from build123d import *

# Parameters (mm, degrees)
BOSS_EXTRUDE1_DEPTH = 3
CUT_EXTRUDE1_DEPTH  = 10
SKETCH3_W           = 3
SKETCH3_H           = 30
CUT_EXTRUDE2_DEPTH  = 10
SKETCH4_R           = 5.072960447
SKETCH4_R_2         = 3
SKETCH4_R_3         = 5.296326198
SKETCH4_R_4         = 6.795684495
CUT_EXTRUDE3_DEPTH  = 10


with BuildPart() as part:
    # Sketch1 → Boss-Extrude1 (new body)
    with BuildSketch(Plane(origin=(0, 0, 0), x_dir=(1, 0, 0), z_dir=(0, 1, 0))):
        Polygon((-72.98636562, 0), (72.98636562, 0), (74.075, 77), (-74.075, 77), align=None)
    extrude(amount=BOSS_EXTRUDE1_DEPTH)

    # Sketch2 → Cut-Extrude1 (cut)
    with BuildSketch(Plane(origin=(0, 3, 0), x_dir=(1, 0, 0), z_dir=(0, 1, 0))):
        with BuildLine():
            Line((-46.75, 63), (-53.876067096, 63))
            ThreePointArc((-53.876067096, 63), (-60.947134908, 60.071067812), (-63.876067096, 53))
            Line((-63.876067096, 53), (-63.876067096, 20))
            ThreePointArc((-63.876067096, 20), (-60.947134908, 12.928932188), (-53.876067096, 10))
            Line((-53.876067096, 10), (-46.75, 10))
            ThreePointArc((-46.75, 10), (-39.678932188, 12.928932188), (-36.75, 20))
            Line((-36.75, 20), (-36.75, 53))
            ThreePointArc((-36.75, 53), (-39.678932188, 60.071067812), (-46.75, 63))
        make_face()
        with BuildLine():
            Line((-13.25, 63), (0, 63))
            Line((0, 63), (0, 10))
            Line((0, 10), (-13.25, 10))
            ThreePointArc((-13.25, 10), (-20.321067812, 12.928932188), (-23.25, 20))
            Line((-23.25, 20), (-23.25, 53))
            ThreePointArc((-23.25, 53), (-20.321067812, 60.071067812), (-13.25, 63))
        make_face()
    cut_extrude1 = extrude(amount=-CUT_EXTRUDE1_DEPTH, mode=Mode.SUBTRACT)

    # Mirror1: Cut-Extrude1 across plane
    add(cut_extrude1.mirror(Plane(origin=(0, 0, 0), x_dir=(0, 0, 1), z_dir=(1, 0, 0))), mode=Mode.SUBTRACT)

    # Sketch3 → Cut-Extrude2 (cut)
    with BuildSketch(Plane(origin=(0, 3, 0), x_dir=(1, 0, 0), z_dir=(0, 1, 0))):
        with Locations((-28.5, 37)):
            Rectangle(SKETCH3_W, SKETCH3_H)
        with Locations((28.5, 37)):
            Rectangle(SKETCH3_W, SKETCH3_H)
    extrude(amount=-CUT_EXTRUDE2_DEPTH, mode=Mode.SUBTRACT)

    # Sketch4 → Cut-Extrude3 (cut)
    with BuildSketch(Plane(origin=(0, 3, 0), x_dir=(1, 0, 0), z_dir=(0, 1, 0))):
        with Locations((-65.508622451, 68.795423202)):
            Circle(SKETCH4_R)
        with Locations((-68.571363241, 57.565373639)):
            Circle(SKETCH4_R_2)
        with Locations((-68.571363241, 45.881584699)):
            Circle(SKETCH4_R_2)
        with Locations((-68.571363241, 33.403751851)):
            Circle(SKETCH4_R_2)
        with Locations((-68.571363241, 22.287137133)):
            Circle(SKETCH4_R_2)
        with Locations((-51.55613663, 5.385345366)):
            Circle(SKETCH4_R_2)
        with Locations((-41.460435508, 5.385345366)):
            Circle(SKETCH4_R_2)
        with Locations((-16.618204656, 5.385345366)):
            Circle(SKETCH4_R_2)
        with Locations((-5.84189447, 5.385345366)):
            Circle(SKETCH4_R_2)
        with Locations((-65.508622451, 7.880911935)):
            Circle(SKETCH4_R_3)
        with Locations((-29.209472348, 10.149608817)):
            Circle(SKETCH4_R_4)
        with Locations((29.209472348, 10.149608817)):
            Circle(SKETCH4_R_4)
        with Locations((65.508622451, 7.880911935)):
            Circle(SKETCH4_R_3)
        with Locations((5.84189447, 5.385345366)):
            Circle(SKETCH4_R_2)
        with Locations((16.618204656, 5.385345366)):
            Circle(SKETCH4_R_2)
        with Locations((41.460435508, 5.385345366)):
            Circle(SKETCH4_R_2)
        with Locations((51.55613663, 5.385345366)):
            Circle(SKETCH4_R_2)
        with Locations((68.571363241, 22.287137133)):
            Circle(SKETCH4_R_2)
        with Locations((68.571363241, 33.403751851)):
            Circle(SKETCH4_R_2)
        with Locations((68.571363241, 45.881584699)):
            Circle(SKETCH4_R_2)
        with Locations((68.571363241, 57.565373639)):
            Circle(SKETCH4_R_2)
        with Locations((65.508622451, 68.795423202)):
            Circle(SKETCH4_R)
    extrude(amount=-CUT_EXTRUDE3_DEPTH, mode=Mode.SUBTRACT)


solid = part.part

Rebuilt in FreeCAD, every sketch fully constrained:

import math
import FreeCAD as App
import Part
import Sketcher
from FreeCAD import Vector
Q = App.Units.Quantity

doc = App.newDocument("Part")
body = doc.addObject("PartDesign::Body", "Body")

sketch1 = body.newObject("Sketcher::SketchObject", "Sketch")
sketch1.AttachmentSupport = (doc.getObject("XZ_Plane"), [""])
sketch1.MapMode = "FlatFace"
sketch1.addGeometry([
    Part.LineSegment(Vector(-73, 0, 0), Vector(73, 0, 0)),
    Part.LineSegment(Vector(73, 0, 0), Vector(74, -77, 0)),
    Part.LineSegment(Vector(74, -77, 0), Vector(-74, -77, 0)),
    Part.LineSegment(Vector(-74, -77, 0), Vector(-73, 0, 0)),
], False)
sketch1.addConstraint([
    Sketcher.Constraint("Coincident", 0, 2, 1, 1),
    Sketcher.Constraint("Coincident", 1, 2, 2, 1),
    Sketcher.Constraint("Coincident", 2, 2, 3, 1),
    Sketcher.Constraint("Coincident", 3, 2, 0, 1),
    Sketcher.Constraint("Horizontal", 0),
    Sketcher.Constraint("Horizontal", 2),
    Sketcher.Constraint("Symmetric", 0, 2, 3, 2, -1, 1),
    Sketcher.Constraint("Equal", 1, 3),
    Sketcher.Constraint("DistanceY", 1, 2, -1, 1, Q("77 mm")),
    Sketcher.Constraint("DistanceX", 2, 2, 2, 1, Q("148.15 mm")),
    Sketcher.Constraint("Angle", 1, Q("-89.19 deg")),
])
pad1 = body.newObject("PartDesign::Pad", "Pad")
pad1.Profile = sketch1
pad1.Length = 3
pad1.Reversed = True

sketch2 = body.newObject("Sketcher::SketchObject", "Sketch001")
sketch2.AttachmentSupport = (doc.getObject("XZ_Plane"), [""])
sketch2.MapMode = "FlatFace"
sketch2.AttachmentOffset = App.Placement(Vector(0, 0, -3), App.Rotation())
sketch2.addGeometry([
    Part.LineSegment(Vector(-47, -63, 0), Vector(-54, -63, 0)),
    Part.ArcOfCircle(Part.Circle(Vector(-54, -53, 0), Vector(0, 0, 1), 10), math.radians(180), math.radians(270)),
    Part.LineSegment(Vector(-64, -53, 0), Vector(-64, -20, 0)),
    Part.ArcOfCircle(Part.Circle(Vector(-54, -20, 0), Vector(0, 0, 1), 10), math.radians(90), math.radians(180)),
    Part.LineSegment(Vector(-54, -10, 0), Vector(-47, -10, 0)),
    Part.ArcOfCircle(Part.Circle(Vector(-47, -20, 0), Vector(0, 0, 1), 10), math.radians(0), math.radians(90)),
    Part.LineSegment(Vector(-37, -20, 0), Vector(-37, -53, 0)),
    Part.ArcOfCircle(Part.Circle(Vector(-47, -53, 0), Vector(0, 0, 1), 10), math.radians(-90), math.radians(0)),
    Part.LineSegment(Vector(0, -63, 0), Vector(-13, -63, 0)),
    Part.ArcOfCircle(Part.Circle(Vector(-13, -53, 0), Vector(0, 0, 1), 10), math.radians(180), math.radians(270)),
    Part.LineSegment(Vector(-23, -53, 0), Vector(-23, -20, 0)),
    Part.ArcOfCircle(Part.Circle(Vector(-13, -20, 0), Vector(0, 0, 1), 10), math.radians(90), math.radians(180)),
    Part.LineSegment(Vector(-13, -10, 0), Vector(0, -10, 0)),
    Part.LineSegment(Vector(0, -10, 0), Vector(0, -63, 0)),
], False)
sketch2.addConstraint([
    Sketcher.Constraint("Tangent", 0, 2, 1, 2),
    Sketcher.Constraint("Tangent", 1, 1, 2, 1),
    Sketcher.Constraint("Tangent", 2, 2, 3, 2),
    Sketcher.Constraint("Tangent", 3, 1, 4, 1),
    Sketcher.Constraint("Tangent", 4, 2, 5, 2),
    Sketcher.Constraint("Tangent", 5, 1, 6, 1),
    Sketcher.Constraint("Tangent", 6, 2, 7, 2),
    Sketcher.Constraint("Tangent", 7, 1, 0, 1),
    Sketcher.Constraint("Tangent", 8, 2, 9, 2),
    Sketcher.Constraint("Tangent", 9, 1, 10, 1),
    Sketcher.Constraint("Tangent", 10, 2, 11, 2),
    Sketcher.Constraint("Tangent", 11, 1, 12, 1),
    Sketcher.Constraint("Coincident", 12, 2, 13, 1),
    Sketcher.Constraint("Coincident", 13, 2, 8, 1),
    Sketcher.Constraint("Horizontal", 0),
    Sketcher.Constraint("Vertical", 2),
    Sketcher.Constraint("Horizontal", 4),
    Sketcher.Constraint("Vertical", 6),
    Sketcher.Constraint("Horizontal", 8),
    Sketcher.Constraint("Vertical", 10),
    Sketcher.Constraint("Horizontal", 12),
    Sketcher.Constraint("Vertical", 13),
    Sketcher.Constraint("Equal", 1, 3),
    Sketcher.Constraint("Equal", 3, 5),
    Sketcher.Constraint("Equal", 5, 7),
    Sketcher.Constraint("Equal", 7, 9),
    Sketcher.Constraint("Equal", 9, 11),
    Sketcher.Constraint("PointOnObject", 12, 2, -2),
    Sketcher.Constraint("Horizontal", 7, 3, 9, 3),
    Sketcher.Constraint("Horizontal", 5, 3, 11, 3),
    Sketcher.Constraint("Radius", 1, Q("10 mm")),
    Sketcher.Constraint("DistanceY", 2, 1, 2, 2, Q("33 mm")),
    Sketcher.Constraint("DistanceY", 1, 3, -1, 1, Q("53 mm")),
    Sketcher.Constraint("DistanceX", 8, 2, 8, 1, Q("13.25 mm")),
    Sketcher.Constraint("DistanceX", 7, 3, 9, 3, Q("33.5 mm")),
    Sketcher.Constraint("DistanceX", 0, 2, 0, 1, Q("7.126067 mm")),
])
pocket1 = body.newObject("PartDesign::Pocket", "Pocket")
pocket1.Profile = sketch2
pocket1.Length = 10
pocket1.Reversed = True
doc.recompute()

mirrored = body.newObject("PartDesign::Mirrored", "Mirrored")
mirrored.Originals = [pocket1]
mirrored.MirrorPlane = (doc.getObject("YZ_Plane"), [""])
body.Tip = mirrored

sketch3 = body.newObject("Sketcher::SketchObject", "Sketch002")
sketch3.AttachmentSupport = (doc.getObject("XZ_Plane"), [""])
sketch3.MapMode = "FlatFace"
sketch3.AttachmentOffset = App.Placement(Vector(0, 0, -3), App.Rotation())
sketch3.addGeometry([
    Part.LineSegment(Vector(-30, -52, 0), Vector(-30, -22, 0)),
    Part.LineSegment(Vector(-30, -22, 0), Vector(-27, -22, 0)),
    Part.LineSegment(Vector(-27, -22, 0), Vector(-27, -52, 0)),
    Part.LineSegment(Vector(-27, -52, 0), Vector(-30, -52, 0)),
    Part.LineSegment(Vector(27, -52, 0), Vector(27, -22, 0)),
    Part.LineSegment(Vector(27, -22, 0), Vector(30, -22, 0)),
    Part.LineSegment(Vector(30, -22, 0), Vector(30, -52, 0)),
    Part.LineSegment(Vector(30, -52, 0), Vector(27, -52, 0)),
], False)
sketch3.addConstraint([
    Sketcher.Constraint("Coincident", 0, 2, 1, 1),
    Sketcher.Constraint("Coincident", 1, 2, 2, 1),
    Sketcher.Constraint("Coincident", 2, 2, 3, 1),
    Sketcher.Constraint("Coincident", 3, 2, 0, 1),
    Sketcher.Constraint("Coincident", 4, 2, 5, 1),
    Sketcher.Constraint("Coincident", 5, 2, 6, 1),
    Sketcher.Constraint("Coincident", 6, 2, 7, 1),
    Sketcher.Constraint("Coincident", 7, 2, 4, 1),
    Sketcher.Constraint("Vertical", 0),
    Sketcher.Constraint("Horizontal", 1),
    Sketcher.Constraint("Vertical", 2),
    Sketcher.Constraint("Horizontal", 3),
    Sketcher.Constraint("Vertical", 4),
    Sketcher.Constraint("Horizontal", 5),
    Sketcher.Constraint("Vertical", 6),
    Sketcher.Constraint("Horizontal", 7),
    Sketcher.Constraint("Symmetric", 1, 2, 4, 2, -2),
    Sketcher.Constraint("Symmetric", 3, 2, 6, 2, -2),
    Sketcher.Constraint("DistanceX", 1, 1, 1, 2, Q("3 mm")),
    Sketcher.Constraint("DistanceY", 0, 1, 0, 2, Q("30 mm")),
    Sketcher.Constraint("DistanceX", 0, 2, -1, 1, Q("30 mm")),
    Sketcher.Constraint("DistanceY", 0, 2, -1, 1, Q("22 mm")),
])
pocket2 = body.newObject("PartDesign::Pocket", "Pocket001")
pocket2.Profile = sketch3
pocket2.Length = 10
pocket2.Reversed = True

sketch4 = body.newObject("Sketcher::SketchObject", "Sketch003")
sketch4.AttachmentSupport = (doc.getObject("XZ_Plane"), [""])
sketch4.MapMode = "FlatFace"
sketch4.AttachmentOffset = App.Placement(Vector(0, 0, -3), App.Rotation())
sketch4.addGeometry([
    Part.Circle(Vector(-65.5, -68.8, 0), Vector(0, 0, 1), 5.1),
    Part.Circle(Vector(-68.6, -57.6, 0), Vector(0, 0, 1), 3),
    Part.Circle(Vector(-68.6, -45.9, 0), Vector(0, 0, 1), 3),
    Part.Circle(Vector(-68.6, -33.4, 0), Vector(0, 0, 1), 3),
    Part.Circle(Vector(-68.6, -22.3, 0), Vector(0, 0, 1), 3),
    Part.Circle(Vector(-51.6, -5.4, 0), Vector(0, 0, 1), 3),
    Part.Circle(Vector(-41.5, -5.4, 0), Vector(0, 0, 1), 3),
    Part.Circle(Vector(-16.6, -5.4, 0), Vector(0, 0, 1), 3),
    Part.Circle(Vector(-5.8, -5.4, 0), Vector(0, 0, 1), 3),
    Part.Circle(Vector(-65.5, -7.9, 0), Vector(0, 0, 1), 5.3),
    Part.Circle(Vector(-29.2, -10.1, 0), Vector(0, 0, 1), 6.8),
    Part.Circle(Vector(29.2, -10.1, 0), Vector(0, 0, 1), 6.8),
    Part.Circle(Vector(65.5, -7.9, 0), Vector(0, 0, 1), 5.3),
    Part.Circle(Vector(5.8, -5.4, 0), Vector(0, 0, 1), 3),
    Part.Circle(Vector(16.6, -5.4, 0), Vector(0, 0, 1), 3),
    Part.Circle(Vector(41.5, -5.4, 0), Vector(0, 0, 1), 3),
    Part.Circle(Vector(51.6, -5.4, 0), Vector(0, 0, 1), 3),
    Part.Circle(Vector(68.6, -22.3, 0), Vector(0, 0, 1), 3),
    Part.Circle(Vector(68.6, -33.4, 0), Vector(0, 0, 1), 3),
    Part.Circle(Vector(68.6, -45.9, 0), Vector(0, 0, 1), 3),
    Part.Circle(Vector(68.6, -57.6, 0), Vector(0, 0, 1), 3),
    Part.Circle(Vector(65.5, -68.8, 0), Vector(0, 0, 1), 5.1),
], False)
sketch4.addConstraint([
    Sketcher.Constraint("Equal", 1, 2),
    Sketcher.Constraint("Equal", 2, 3),
    Sketcher.Constraint("Equal", 3, 4),
    Sketcher.Constraint("Equal", 4, 5),
    Sketcher.Constraint("Equal", 5, 6),
    Sketcher.Constraint("Equal", 6, 7),
    Sketcher.Constraint("Equal", 7, 8),
    Sketcher.Constraint("Equal", 10, 11),
    Sketcher.Constraint("Equal", 9, 12),
    Sketcher.Constraint("Equal", 8, 13),
    Sketcher.Constraint("Equal", 13, 14),
    Sketcher.Constraint("Equal", 14, 15),
    Sketcher.Constraint("Equal", 15, 16),
    Sketcher.Constraint("Equal", 16, 17),
    Sketcher.Constraint("Equal", 17, 18),
    Sketcher.Constraint("Equal", 18, 19),
    Sketcher.Constraint("Equal", 19, 20),
    Sketcher.Constraint("Equal", 0, 21),
    Sketcher.Constraint("Symmetric", 10, 3, 11, 3, -2),
    Sketcher.Constraint("Symmetric", 9, 3, 12, 3, -2),
    Sketcher.Constraint("Symmetric", 8, 3, 13, 3, -2),
    Sketcher.Constraint("Symmetric", 7, 3, 14, 3, -2),
    Sketcher.Constraint("Symmetric", 6, 3, 15, 3, -2),
    Sketcher.Constraint("Symmetric", 5, 3, 16, 3, -2),
    Sketcher.Constraint("Symmetric", 4, 3, 17, 3, -2),
    Sketcher.Constraint("Symmetric", 3, 3, 18, 3, -2),
    Sketcher.Constraint("Symmetric", 2, 3, 19, 3, -2),
    Sketcher.Constraint("Symmetric", 1, 3, 20, 3, -2),
    Sketcher.Constraint("Symmetric", 0, 3, 21, 3, -2),
    Sketcher.Constraint("Horizontal", 5, 3, 6, 3),
    Sketcher.Constraint("Horizontal", 6, 3, 7, 3),
    Sketcher.Constraint("Horizontal", 7, 3, 8, 3),
    Sketcher.Constraint("Vertical", 1, 3, 2, 3),
    Sketcher.Constraint("Vertical", 2, 3, 3, 3),
    Sketcher.Constraint("Vertical", 3, 3, 4, 3),
    Sketcher.Constraint("Vertical", 0, 3, 9, 3),
    Sketcher.Constraint("Diameter", 1, Q("6 mm")),
    Sketcher.Constraint("Diameter", 0, Q("10.145921 mm")),
    Sketcher.Constraint("Diameter", 10, Q("13.591369 mm")),
    Sketcher.Constraint("Diameter", 9, Q("10.592652 mm")),
    Sketcher.Constraint("DistanceX", 5, 3, 6, 3, Q("10.095701 mm")),
    Sketcher.Constraint("DistanceX", 7, 3, 13, 3, Q("22.460099 mm")),
    Sketcher.Constraint("DistanceY", 3, 3, -1, 1, Q("33.403752 mm")),
    Sketcher.Constraint("DistanceY", 9, 3, -1, 1, Q("7.880912 mm")),
    Sketcher.Constraint("DistanceY", 10, 3, -1, 1, Q("10.149609 mm")),
    Sketcher.Constraint("DistanceX", 1, 3, 0, 3, Q("3.062741 mm")),
    Sketcher.Constraint("DistanceY", 0, 3, 1, 3, Q("11.23005 mm")),
    Sketcher.Constraint("DistanceY", 1, 3, 2, 3, Q("11.683789 mm")),
    Sketcher.Constraint("DistanceY", 1, 3, 3, 3, Q("24.161622 mm")),
    Sketcher.Constraint("DistanceY", 4, 3, 5, 3, Q("16.901792 mm")),
    Sketcher.Constraint("DistanceY", 2, 3, 5, 3, Q("40.496239 mm")),
    Sketcher.Constraint("DistanceX", 6, 3, 7, 3, Q("24.842231 mm")),
    Sketcher.Constraint("DistanceX", 4, 3, 7, 3, Q("51.953159 mm")),
    Sketcher.Constraint("DistanceX", 7, 3, 8, 3, Q("10.77631 mm")),
    Sketcher.Constraint("DistanceX", 9, 3, 10, 3, Q("36.29915 mm")),
])
pocket3 = body.newObject("PartDesign::Pocket", "Pocket002")
pocket3.Profile = sketch4
pocket3.Length = 10
pocket3.Reversed = True

doc.recompute()
